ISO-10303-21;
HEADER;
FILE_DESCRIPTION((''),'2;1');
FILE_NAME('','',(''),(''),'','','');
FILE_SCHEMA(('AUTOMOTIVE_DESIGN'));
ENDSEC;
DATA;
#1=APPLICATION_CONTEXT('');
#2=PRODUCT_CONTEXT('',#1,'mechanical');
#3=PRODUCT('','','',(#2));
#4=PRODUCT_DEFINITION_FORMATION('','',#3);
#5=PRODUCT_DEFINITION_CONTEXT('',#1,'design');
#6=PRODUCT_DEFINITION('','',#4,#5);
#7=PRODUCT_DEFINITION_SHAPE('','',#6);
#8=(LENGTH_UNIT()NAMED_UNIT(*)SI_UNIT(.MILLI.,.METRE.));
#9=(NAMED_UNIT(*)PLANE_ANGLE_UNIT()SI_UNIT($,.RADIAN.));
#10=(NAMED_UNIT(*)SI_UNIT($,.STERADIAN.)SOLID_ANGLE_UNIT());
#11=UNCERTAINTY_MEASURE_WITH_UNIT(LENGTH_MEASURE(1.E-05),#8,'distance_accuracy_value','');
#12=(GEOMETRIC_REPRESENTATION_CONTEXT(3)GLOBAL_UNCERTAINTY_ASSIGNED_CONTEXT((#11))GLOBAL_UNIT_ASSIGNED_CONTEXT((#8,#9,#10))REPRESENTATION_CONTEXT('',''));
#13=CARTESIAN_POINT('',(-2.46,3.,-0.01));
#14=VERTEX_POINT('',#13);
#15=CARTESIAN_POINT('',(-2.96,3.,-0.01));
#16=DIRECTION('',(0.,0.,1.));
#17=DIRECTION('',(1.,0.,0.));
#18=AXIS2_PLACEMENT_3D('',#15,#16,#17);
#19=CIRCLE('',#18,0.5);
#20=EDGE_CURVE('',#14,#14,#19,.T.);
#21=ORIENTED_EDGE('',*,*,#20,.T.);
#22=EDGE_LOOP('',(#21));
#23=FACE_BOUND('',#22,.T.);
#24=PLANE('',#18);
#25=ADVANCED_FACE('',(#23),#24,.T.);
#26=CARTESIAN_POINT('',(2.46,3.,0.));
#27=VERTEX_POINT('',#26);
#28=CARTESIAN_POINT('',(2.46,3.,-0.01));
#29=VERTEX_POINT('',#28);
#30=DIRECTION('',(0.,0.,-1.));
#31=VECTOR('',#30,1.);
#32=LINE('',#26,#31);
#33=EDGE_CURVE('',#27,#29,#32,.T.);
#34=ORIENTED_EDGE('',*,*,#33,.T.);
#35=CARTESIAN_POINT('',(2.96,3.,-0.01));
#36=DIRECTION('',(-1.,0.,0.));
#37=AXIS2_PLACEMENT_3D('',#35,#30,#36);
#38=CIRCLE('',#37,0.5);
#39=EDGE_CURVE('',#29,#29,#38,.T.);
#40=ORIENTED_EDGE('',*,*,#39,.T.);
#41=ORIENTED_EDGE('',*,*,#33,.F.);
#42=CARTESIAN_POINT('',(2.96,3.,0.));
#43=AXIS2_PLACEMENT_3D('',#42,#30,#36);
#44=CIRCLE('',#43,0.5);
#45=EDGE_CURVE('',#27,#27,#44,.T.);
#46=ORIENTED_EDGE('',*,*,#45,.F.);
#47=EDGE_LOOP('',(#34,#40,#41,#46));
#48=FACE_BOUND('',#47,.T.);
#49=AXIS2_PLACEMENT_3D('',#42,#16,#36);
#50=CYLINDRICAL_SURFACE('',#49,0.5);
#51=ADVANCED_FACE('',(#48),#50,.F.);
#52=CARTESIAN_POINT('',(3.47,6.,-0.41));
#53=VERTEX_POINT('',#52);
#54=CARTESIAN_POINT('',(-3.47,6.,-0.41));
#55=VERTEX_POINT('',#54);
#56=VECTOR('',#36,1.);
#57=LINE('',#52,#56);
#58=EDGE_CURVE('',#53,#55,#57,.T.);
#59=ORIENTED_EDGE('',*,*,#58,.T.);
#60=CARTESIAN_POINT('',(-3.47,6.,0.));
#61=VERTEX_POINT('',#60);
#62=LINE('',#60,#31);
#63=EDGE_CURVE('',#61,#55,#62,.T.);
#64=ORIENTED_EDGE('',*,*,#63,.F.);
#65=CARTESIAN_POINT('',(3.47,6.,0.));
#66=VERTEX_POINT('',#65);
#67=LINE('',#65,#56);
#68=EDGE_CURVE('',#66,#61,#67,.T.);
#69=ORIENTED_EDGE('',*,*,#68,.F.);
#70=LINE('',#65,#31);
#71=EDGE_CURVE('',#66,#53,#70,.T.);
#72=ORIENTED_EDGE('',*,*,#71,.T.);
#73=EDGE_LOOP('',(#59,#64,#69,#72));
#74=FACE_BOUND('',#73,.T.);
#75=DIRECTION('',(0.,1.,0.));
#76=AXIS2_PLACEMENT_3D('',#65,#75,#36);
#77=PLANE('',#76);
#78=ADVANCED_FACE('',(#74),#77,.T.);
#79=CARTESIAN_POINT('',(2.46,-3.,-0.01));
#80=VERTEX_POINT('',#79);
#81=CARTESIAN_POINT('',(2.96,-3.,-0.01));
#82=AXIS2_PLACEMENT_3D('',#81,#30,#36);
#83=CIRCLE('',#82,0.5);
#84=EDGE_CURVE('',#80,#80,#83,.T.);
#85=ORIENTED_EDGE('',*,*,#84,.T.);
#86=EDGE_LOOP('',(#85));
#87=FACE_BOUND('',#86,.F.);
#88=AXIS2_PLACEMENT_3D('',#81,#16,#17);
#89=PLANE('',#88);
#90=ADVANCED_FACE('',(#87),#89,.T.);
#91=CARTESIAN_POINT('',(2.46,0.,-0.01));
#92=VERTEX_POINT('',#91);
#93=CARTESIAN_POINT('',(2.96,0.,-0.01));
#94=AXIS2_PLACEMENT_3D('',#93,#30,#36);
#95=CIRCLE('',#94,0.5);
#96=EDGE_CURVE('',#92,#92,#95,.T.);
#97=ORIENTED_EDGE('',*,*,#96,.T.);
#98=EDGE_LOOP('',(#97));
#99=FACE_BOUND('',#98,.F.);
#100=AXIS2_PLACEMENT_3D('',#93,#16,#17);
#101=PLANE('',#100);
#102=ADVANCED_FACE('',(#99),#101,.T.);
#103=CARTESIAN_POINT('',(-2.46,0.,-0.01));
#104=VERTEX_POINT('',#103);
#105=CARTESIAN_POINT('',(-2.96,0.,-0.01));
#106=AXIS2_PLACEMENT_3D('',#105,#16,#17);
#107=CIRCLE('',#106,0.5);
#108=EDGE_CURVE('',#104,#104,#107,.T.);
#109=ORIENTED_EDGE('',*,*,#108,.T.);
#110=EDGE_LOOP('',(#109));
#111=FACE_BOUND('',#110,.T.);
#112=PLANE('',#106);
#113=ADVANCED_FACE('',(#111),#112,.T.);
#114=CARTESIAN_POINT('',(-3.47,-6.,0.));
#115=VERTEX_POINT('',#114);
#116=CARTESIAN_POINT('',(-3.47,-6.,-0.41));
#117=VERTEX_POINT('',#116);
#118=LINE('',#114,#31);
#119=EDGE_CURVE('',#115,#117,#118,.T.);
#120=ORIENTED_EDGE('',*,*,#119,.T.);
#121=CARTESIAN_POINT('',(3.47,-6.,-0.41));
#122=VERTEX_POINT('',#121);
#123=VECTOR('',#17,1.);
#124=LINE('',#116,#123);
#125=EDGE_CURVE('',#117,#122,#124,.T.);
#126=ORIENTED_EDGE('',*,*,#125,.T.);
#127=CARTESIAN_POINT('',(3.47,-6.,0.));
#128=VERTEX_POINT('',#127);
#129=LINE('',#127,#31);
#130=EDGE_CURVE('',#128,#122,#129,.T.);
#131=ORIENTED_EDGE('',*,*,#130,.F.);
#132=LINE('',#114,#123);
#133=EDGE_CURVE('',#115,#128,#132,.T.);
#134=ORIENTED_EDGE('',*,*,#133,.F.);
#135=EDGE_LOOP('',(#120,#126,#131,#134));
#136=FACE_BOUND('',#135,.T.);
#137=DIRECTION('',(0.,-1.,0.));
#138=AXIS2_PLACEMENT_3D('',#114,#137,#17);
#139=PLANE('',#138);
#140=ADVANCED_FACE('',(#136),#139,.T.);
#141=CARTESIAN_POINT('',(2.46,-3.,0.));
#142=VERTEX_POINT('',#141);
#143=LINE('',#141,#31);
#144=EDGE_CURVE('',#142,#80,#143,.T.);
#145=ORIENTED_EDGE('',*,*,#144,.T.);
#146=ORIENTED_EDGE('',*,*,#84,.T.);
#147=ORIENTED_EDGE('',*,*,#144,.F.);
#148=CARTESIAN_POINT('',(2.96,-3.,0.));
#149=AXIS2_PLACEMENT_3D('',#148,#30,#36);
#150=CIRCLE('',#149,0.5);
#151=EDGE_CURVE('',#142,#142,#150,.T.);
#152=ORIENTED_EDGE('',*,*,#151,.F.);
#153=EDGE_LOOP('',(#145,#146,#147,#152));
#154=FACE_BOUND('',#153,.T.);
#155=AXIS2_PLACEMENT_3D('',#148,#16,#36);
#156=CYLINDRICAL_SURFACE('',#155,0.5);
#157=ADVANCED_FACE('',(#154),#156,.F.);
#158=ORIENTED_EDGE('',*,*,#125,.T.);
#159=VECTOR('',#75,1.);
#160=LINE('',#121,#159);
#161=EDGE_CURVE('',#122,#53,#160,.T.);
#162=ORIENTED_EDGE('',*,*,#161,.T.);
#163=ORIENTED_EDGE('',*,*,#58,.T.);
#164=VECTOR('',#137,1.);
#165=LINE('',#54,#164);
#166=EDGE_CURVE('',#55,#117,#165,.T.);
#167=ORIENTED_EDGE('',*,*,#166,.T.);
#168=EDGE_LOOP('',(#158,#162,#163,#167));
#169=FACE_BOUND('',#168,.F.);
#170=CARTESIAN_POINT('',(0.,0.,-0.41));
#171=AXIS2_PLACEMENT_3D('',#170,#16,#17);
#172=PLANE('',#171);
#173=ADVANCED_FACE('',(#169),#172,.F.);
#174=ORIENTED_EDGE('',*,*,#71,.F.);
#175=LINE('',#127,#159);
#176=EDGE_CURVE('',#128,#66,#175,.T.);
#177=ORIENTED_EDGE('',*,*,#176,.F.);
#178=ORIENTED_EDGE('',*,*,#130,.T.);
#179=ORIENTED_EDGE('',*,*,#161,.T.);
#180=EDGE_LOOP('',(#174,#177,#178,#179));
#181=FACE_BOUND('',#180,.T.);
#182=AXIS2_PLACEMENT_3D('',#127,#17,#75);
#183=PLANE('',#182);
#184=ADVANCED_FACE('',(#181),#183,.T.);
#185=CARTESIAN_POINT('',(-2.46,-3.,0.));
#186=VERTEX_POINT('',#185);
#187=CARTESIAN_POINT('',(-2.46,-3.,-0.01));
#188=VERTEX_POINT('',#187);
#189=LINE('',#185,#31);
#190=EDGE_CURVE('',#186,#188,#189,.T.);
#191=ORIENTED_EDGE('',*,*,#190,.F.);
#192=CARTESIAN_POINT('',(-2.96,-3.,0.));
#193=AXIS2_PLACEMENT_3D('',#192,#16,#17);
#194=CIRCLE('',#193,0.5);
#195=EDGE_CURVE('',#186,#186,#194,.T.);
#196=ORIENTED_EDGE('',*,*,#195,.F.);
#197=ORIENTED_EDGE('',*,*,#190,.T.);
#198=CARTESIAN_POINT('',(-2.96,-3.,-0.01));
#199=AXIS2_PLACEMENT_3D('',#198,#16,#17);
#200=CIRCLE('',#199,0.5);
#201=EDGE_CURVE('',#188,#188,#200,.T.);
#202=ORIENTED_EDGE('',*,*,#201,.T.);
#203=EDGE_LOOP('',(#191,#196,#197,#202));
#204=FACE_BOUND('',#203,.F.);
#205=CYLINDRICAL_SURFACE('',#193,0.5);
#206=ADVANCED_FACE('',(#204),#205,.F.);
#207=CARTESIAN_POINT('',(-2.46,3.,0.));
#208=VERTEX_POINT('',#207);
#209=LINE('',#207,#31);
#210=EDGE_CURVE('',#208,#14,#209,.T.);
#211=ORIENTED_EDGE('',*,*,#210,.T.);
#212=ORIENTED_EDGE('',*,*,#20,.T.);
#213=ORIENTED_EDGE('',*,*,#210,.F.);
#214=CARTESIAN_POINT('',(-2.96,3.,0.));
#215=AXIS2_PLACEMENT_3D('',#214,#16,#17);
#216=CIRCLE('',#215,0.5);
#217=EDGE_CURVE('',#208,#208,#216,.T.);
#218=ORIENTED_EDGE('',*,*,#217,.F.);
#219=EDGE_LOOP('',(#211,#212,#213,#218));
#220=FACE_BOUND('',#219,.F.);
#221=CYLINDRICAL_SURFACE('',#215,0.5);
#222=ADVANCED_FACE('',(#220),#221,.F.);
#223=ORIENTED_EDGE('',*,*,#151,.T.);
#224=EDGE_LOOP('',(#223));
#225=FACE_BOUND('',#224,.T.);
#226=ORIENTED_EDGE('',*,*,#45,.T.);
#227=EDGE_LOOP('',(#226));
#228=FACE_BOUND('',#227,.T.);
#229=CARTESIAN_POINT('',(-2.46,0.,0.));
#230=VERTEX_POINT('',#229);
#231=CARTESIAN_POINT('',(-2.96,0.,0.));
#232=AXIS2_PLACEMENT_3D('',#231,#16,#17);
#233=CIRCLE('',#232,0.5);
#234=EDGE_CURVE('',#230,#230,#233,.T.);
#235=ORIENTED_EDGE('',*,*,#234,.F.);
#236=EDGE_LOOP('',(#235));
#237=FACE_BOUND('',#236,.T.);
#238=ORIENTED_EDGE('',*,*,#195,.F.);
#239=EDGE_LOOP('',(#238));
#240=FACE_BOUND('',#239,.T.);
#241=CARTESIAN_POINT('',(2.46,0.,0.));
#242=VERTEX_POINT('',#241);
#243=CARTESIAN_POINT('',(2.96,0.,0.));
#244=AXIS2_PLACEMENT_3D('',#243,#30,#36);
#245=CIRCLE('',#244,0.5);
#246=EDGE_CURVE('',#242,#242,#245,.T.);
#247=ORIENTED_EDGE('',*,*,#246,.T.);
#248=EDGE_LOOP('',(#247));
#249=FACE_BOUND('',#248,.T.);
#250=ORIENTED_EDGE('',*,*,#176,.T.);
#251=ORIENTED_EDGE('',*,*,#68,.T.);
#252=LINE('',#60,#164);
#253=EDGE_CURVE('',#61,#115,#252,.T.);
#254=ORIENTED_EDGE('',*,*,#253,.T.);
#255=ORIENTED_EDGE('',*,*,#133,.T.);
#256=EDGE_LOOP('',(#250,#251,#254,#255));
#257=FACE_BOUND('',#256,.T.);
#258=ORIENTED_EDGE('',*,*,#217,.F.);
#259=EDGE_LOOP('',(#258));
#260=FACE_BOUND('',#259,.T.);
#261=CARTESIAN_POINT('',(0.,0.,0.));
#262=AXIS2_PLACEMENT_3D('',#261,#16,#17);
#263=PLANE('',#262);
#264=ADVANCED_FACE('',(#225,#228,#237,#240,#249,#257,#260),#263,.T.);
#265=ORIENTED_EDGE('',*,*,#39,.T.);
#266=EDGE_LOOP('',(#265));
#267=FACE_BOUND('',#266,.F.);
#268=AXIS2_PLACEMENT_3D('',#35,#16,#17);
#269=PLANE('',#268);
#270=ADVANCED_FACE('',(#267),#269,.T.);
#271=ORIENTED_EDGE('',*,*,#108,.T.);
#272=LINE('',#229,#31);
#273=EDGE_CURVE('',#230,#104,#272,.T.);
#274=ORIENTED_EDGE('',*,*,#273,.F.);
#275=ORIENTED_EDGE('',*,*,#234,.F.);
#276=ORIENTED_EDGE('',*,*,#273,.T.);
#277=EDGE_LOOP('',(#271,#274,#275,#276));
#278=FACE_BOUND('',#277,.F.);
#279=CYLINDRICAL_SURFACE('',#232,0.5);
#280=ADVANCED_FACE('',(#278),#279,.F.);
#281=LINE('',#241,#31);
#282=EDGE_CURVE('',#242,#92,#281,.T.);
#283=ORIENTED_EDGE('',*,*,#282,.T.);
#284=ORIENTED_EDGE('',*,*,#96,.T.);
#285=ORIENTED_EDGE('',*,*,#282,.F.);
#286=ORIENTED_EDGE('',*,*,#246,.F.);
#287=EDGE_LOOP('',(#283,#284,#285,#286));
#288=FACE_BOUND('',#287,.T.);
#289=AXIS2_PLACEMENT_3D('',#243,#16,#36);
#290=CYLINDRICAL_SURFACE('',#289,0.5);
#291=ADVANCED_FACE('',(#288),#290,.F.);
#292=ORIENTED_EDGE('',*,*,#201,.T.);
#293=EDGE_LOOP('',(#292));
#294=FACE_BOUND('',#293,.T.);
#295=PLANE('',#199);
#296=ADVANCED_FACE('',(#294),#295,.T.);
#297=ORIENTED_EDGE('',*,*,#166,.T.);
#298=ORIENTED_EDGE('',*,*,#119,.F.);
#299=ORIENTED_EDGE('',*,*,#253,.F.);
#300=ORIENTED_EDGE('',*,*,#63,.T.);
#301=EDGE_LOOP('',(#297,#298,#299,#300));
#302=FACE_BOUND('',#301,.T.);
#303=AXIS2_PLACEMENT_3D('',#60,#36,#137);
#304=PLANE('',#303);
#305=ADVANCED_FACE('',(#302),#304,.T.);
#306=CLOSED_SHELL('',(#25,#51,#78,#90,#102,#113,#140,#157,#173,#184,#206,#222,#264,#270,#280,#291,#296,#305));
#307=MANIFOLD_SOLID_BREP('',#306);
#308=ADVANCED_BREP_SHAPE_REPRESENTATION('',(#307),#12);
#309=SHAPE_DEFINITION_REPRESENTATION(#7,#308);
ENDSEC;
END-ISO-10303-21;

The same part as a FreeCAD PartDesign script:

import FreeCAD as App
import Part
import Sketcher


def add_polygon(sketch, points):
    """Adds a closed chain of lines whose ends are joined by coincident constraints."""
    first, n = sketch.GeometryCount, len(points)
    for a, b in zip(points, points[1:] + points[:1]):
        sketch.addGeometry(Part.LineSegment(App.Vector(*a, 0), App.Vector(*b, 0)), False)
    for i in range(n):
        sketch.addConstraint(Sketcher.Constraint("Coincident", first + i, 2, first + (i + 1) % n, 1))

doc = App.newDocument("Part")
body = doc.addObject("PartDesign::Body", "Body")

# Sketch on XY plane
sketch1 = body.newObject("Sketcher::SketchObject", "Sketch")
sketch1.AttachmentSupport = (doc.getObject("XY_Plane"), [""])
sketch1.MapMode = "FlatFace"
add_polygon(sketch1, [(-3, 6), (-3, -6), (3, -6), (3, 6)])  # lines 0-3
sketch1.addConstraint([
    Sketcher.Constraint("Vertical", 0),
    Sketcher.Constraint("Horizontal", 1),
    Sketcher.Constraint("Vertical", 2),
    Sketcher.Constraint("Horizontal", 3),
    Sketcher.Constraint("Symmetric", 0, 2, 2, 2, -1, 1),
    Sketcher.Constraint("DistanceY", 0, 2, 0, 1, 12.0),
    Sketcher.Constraint("DistanceX", 0, 2, -1, 1, 3.47),
])
pad1 = body.newObject("PartDesign::Pad", "Pad")
pad1.Profile = sketch1
pad1.Length = 0.41
pad1.Reversed = True

# Sketch on XY plane
sketch2 = body.newObject("Sketcher::SketchObject", "Sketch001")
sketch2.AttachmentSupport = (doc.getObject("XY_Plane"), [""])
sketch2.MapMode = "FlatFace"
sketch2.addGeometry([
    Part.Circle(App.Vector(-3, 3, 0), App.Vector(0, 0, 1), 0.5),
    Part.Circle(App.Vector(-3, 0, 0), App.Vector(0, 0, 1), 0.5),
    Part.Circle(App.Vector(-3, -3, 0), App.Vector(0, 0, 1), 0.5),
], False)
sketch2.addConstraint([
    Sketcher.Constraint("Equal", 0, 1),
    Sketcher.Constraint("Equal", 1, 2),
    Sketcher.Constraint("Symmetric", 0, 3, 2, 3, -1),
    Sketcher.Constraint("PointOnObject", 1, 3, -1),
    Sketcher.Constraint("Vertical", 0, 3, 1, 3),
    Sketcher.Constraint("Diameter", 0, 1.0),
    Sketcher.Constraint("DistanceY", -1, 1, 0, 3, 3.0),
    Sketcher.Constraint("DistanceX", 0, 3, -1, 1, 2.96),
])
pocket1 = body.newObject("PartDesign::Pocket", "Pocket")
pocket1.Profile = sketch2
pocket1.Length = 0.01
doc.recompute()

mirrored = body.newObject("PartDesign::Mirrored", "Mirrored")
mirrored.Originals = [pocket1]
mirrored.MirrorPlane = (doc.getObject("YZ_Plane"), [""])
body.Tip = mirrored

doc.recompute()
